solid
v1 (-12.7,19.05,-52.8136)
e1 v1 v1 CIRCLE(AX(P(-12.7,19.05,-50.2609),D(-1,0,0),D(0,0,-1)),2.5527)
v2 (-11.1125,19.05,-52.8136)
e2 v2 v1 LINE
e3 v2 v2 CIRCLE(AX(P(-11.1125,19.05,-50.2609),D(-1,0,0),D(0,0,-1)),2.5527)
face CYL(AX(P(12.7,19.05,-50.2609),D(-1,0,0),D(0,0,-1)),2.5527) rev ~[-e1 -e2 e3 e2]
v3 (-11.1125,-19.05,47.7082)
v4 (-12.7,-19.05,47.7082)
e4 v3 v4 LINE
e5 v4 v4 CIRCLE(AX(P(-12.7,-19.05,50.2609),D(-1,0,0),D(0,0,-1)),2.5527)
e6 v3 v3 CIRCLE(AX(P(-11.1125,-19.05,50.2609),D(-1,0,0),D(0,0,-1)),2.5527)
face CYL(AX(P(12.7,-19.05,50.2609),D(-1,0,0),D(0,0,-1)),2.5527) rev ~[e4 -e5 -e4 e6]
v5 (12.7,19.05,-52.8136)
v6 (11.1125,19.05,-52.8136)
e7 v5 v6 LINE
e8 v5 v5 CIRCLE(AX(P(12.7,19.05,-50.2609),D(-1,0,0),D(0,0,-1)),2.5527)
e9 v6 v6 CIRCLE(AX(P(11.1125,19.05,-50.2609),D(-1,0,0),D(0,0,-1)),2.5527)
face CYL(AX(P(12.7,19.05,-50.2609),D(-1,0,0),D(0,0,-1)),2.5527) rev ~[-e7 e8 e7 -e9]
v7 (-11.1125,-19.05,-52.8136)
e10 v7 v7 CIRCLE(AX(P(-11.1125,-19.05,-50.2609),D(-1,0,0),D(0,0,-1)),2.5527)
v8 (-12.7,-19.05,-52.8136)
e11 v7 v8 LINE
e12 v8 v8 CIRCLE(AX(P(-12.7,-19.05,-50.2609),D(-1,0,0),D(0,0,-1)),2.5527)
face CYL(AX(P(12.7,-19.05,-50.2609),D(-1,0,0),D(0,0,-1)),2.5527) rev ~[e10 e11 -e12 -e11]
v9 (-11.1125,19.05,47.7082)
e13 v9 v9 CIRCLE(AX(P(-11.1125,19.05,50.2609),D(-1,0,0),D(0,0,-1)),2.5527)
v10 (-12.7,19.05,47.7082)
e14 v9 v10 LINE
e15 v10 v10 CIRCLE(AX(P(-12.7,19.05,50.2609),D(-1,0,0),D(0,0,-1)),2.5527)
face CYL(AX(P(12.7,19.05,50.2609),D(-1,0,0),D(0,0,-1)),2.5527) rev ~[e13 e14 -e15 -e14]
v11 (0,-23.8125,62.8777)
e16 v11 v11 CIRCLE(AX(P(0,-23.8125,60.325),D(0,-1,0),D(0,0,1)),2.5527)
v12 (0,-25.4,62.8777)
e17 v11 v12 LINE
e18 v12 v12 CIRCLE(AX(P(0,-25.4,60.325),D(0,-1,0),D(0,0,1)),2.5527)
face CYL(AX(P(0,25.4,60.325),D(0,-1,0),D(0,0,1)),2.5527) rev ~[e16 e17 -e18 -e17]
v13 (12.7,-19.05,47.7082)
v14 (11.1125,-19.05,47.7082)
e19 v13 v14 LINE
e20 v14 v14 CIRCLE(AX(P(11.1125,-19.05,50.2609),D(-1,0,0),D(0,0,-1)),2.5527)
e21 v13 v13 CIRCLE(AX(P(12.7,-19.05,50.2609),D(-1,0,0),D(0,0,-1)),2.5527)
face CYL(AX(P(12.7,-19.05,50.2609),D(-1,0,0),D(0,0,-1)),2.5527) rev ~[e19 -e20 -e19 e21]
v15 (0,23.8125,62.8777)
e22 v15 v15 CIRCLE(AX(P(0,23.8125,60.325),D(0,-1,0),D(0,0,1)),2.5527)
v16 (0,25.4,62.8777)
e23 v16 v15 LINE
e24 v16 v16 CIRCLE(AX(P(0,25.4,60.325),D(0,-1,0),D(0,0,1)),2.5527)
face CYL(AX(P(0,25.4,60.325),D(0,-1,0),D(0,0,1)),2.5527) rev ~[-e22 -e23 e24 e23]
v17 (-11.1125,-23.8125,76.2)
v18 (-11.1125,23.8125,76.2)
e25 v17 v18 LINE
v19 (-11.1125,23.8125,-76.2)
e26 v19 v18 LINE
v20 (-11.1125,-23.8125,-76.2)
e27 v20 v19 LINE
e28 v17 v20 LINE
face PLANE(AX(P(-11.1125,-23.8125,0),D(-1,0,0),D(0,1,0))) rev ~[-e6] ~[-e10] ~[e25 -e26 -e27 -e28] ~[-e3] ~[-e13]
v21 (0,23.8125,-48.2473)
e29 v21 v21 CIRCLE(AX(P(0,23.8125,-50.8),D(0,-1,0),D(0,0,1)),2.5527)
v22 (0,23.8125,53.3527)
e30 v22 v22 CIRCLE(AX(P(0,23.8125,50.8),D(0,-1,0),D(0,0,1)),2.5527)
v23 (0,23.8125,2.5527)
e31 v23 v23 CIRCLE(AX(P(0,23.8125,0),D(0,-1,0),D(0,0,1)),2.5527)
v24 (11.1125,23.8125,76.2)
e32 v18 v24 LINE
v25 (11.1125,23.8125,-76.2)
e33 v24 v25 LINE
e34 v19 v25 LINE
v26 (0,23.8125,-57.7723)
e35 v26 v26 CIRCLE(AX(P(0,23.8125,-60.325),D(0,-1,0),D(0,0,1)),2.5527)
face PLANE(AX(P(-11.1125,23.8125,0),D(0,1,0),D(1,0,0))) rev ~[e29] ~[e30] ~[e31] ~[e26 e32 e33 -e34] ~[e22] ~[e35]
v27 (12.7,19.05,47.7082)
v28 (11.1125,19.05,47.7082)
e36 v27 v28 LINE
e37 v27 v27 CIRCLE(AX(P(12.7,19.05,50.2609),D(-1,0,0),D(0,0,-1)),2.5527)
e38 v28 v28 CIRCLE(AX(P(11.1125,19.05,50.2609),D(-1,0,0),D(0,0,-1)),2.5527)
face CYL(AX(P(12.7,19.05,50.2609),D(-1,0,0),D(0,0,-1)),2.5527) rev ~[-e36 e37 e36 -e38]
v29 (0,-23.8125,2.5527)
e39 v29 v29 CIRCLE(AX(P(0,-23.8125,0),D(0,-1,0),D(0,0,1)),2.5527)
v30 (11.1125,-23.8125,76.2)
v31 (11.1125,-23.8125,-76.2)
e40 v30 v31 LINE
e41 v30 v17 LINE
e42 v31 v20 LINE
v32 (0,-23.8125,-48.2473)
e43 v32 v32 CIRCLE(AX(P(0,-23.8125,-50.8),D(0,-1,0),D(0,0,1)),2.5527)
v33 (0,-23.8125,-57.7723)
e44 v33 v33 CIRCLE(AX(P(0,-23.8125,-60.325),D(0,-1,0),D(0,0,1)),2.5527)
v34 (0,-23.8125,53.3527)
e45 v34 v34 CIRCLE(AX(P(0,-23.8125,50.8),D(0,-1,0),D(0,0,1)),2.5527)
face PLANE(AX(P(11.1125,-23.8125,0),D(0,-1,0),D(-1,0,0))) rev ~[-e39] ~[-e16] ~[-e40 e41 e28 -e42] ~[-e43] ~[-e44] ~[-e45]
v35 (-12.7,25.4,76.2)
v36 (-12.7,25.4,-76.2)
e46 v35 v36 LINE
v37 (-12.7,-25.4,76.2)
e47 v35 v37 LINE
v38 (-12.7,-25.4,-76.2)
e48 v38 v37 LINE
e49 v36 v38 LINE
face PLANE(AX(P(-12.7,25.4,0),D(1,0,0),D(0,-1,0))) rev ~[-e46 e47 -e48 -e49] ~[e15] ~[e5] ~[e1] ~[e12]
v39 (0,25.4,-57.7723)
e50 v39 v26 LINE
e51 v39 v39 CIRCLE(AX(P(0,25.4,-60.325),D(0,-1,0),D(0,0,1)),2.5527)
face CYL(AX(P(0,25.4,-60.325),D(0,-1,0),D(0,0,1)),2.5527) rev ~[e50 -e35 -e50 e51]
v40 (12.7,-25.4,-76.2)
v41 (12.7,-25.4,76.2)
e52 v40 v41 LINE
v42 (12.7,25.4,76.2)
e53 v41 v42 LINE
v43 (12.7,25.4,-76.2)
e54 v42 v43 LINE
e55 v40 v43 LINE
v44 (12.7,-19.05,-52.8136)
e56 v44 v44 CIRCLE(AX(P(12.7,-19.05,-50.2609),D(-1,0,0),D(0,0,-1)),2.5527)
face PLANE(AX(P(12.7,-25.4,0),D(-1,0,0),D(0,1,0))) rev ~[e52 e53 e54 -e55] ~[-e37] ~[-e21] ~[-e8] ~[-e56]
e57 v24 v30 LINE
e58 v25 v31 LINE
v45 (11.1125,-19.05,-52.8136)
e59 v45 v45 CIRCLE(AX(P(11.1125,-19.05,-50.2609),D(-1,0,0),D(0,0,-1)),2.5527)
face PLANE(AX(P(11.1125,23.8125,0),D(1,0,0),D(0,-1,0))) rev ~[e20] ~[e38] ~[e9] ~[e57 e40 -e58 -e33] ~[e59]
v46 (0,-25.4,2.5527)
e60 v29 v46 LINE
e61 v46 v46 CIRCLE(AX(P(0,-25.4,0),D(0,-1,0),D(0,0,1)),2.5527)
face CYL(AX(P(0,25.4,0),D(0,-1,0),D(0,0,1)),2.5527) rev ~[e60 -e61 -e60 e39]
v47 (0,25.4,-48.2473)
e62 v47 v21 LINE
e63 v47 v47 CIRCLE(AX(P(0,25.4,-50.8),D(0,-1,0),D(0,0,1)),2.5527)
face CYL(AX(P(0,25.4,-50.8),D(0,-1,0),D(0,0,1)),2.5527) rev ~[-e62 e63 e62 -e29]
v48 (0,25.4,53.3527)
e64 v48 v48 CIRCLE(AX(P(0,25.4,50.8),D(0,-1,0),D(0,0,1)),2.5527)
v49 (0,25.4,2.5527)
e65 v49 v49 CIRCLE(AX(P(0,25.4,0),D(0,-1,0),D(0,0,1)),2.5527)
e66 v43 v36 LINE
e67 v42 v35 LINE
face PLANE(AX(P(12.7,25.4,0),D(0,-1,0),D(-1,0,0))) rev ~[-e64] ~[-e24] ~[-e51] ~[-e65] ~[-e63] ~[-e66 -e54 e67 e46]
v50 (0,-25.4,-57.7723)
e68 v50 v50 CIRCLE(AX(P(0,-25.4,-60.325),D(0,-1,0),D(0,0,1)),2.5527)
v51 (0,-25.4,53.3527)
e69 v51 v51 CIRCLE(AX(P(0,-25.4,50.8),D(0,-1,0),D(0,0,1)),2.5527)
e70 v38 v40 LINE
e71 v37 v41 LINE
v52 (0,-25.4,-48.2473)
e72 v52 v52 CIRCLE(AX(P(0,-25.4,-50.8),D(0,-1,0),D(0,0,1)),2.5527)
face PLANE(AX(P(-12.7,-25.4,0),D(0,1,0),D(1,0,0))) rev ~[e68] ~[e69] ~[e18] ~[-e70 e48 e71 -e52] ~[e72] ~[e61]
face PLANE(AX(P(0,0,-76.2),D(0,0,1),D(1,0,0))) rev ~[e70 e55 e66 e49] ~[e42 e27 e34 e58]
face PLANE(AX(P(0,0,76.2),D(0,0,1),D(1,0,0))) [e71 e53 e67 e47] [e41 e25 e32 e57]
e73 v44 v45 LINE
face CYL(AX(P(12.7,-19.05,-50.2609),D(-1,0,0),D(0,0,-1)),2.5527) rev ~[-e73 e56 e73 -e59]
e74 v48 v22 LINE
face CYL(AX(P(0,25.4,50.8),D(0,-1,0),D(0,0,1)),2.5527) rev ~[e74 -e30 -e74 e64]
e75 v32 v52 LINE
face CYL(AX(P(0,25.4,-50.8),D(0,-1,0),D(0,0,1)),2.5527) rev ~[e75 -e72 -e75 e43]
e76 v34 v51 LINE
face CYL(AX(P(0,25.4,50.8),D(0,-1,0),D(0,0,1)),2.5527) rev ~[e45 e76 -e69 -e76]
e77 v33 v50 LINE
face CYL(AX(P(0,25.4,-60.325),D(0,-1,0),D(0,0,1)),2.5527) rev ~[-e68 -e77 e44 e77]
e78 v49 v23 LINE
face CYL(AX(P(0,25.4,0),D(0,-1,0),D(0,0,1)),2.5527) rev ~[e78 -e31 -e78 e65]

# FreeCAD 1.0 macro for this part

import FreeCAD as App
import Part
import Sketcher

V = App.Vector
Q = App.Units.Quantity

doc = App.newDocument("Part")
body = doc.addObject("PartDesign::Body", "Body")

sketch1 = body.newObject("Sketcher::SketchObject", "Sketch")
sketch1.AttachmentSupport = (doc.getObject("XY_Plane"), [""])
sketch1.MapMode = "FlatFace"
sketch1.addGeometry(Part.LineSegment(V(-13, 25, 0), V(-13, -25, 0)), False)
sketch1.addGeometry(Part.LineSegment(V(-13, -25, 0), V(13, -25, 0)), False)
sketch1.addGeometry(Part.LineSegment(V(13, -25, 0), V(13, 25, 0)), False)
sketch1.addGeometry(Part.LineSegment(V(13, 25, 0), V(-13, 25, 0)), False)
sketch1.addGeometry(Part.LineSegment(V(-11, -24, 0), V(-11, 24, 0)), False)
sketch1.addGeometry(Part.LineSegment(V(-11, 24, 0), V(11, 24, 0)), False)
sketch1.addGeometry(Part.LineSegment(V(11, 24, 0), V(11, -24, 0)), False)
sketch1.addGeometry(Part.LineSegment(V(11, -24, 0), V(-11, -24, 0)), False)
sketch1.addConstraint(Sketcher.Constraint("Coincident", 0, 2, 1, 1))
sketch1.addConstraint(Sketcher.Constraint("Coincident", 1, 2, 2, 1))
sketch1.addConstraint(Sketcher.Constraint("Coincident", 2, 2, 3, 1))
sketch1.addConstraint(Sketcher.Constraint("Coincident", 3, 2, 0, 1))
sketch1.addConstraint(Sketcher.Constraint("Coincident", 4, 2, 5, 1))
sketch1.addConstraint(Sketcher.Constraint("Coincident", 5, 2, 6, 1))
sketch1.addConstraint(Sketcher.Constraint("Coincident", 6, 2, 7, 1))
sketch1.addConstraint(Sketcher.Constraint("Coincident", 7, 2, 4, 1))
sketch1.addConstraint(Sketcher.Constraint("Vertical", 0))
sketch1.addConstraint(Sketcher.Constraint("Horizontal", 1))
sketch1.addConstraint(Sketcher.Constraint("Vertical", 2))
sketch1.addConstraint(Sketcher.Constraint("Horizontal", 3))
sketch1.addConstraint(Sketcher.Constraint("Vertical", 4))
sketch1.addConstraint(Sketcher.Constraint("Horizontal", 5))
sketch1.addConstraint(Sketcher.Constraint("Vertical", 6))
sketch1.addConstraint(Sketcher.Constraint("Horizontal", 7))
sketch1.addConstraint(Sketcher.Constraint("Symmetric", 0, 2, 2, 2, -1, 1))
sketch1.addConstraint(Sketcher.Constraint("Symmetric", 4, 2, 6, 2, -1, 1))
sketch1.addConstraint(Sketcher.Constraint("DistanceX", 1, 1, 1, 2, Q("1 in")))
sketch1.addConstraint(Sketcher.Constraint("DistanceY", 0, 2, 0, 1, Q("2 in")))
sketch1.addConstraint(Sketcher.Constraint("DistanceX", 3, 2, 4, 2, Q("0.0625 in")))
sketch1.addConstraint(Sketcher.Constraint("DistanceY", 4, 2, 3, 2, Q("0.0625 in")))
pad1 = body.newObject("PartDesign::Pad", "Pad")
pad1.Profile = sketch1
pad1.Length = Q("6 in")
pad1.Midplane = True

sketch2 = body.newObject("Sketcher::SketchObject", "Sketch001")
sketch2.AttachmentSupport = (doc.getObject("XZ_Plane"), [""])
sketch2.MapMode = "FlatFace"
sketch2.AttachmentOffset = App.Placement(V(0, 0, -1 * 25.4), App.Rotation())
sketch2.addGeometry(Part.Circle(V(0, -50.8, 0), V(0, 0, 1), 2.6), False)
sketch2.addGeometry(Part.Circle(V(0, 50.8, 0), V(0, 0, 1), 2.6), False)
sketch2.addGeometry(Part.Circle(V(0, 0, 0), V(0, 0, 1), 2.6), False)
sketch2.addConstraint(Sketcher.Constraint("Coincident", 2, 3, -1, 1))
sketch2.addConstraint(Sketcher.Constraint("Equal", 0, 1))
sketch2.addConstraint(Sketcher.Constraint("Equal", 1, 2))
sketch2.addConstraint(Sketcher.Constraint("Symmetric", 0, 3, 1, 3, -1, 1))
sketch2.addConstraint(Sketcher.Constraint("PointOnObject", 0, 3, -2))
sketch2.addConstraint(Sketcher.Constraint("Diameter", 0, Q("0.201 in")))
sketch2.addConstraint(Sketcher.Constraint("DistanceY", 0, 3, -1, 1, Q("2 in")))
doc.recompute()
hole = body.newObject("PartDesign::Hole", "Hole")
hole.Profile = sketch2
hole.ThreadType = "None"
hole.Diameter = Q("0.201 in")
hole.DepthType = "ThroughAll"
hole.Reversed = True

sketch3 = body.newObject("Sketcher::SketchObject", "Sketch002")
sketch3.AttachmentSupport = (doc.getObject("YZ_Plane"), [""])
sketch3.MapMode = "FlatFace"
sketch3.AttachmentOffset = App.Placement(V(0, 0, 0.5 * 25.4), App.Rotation())
sketch3.addGeometry(Part.Circle(V(19.1, 50.3, 0), V(0, 0, 1), 2.6), False)
sketch3.addGeometry(Part.Circle(V(19.1, -50.3, 0), V(0, 0, 1), 2.6), False)
sketch3.addGeometry(Part.Circle(V(-19.1, -50.3, 0), V(0, 0, 1), 2.6), False)
sketch3.addGeometry(Part.Circle(V(-19.1, 50.3, 0), V(0, 0, 1), 2.6), False)
sketch3.addConstraint(Sketcher.Constraint("Equal", 0, 1))
sketch3.addConstraint(Sketcher.Constraint("Equal", 1, 2))
sketch3.addConstraint(Sketcher.Constraint("Equal", 2, 3))
sketch3.addConstraint(Sketcher.Constraint("Symmetric", 0, 3, 2, 3, -1, 1))
sketch3.addConstraint(Sketcher.Constraint("Symmetric", 1, 3, 3, 3, -1, 1))
sketch3.addConstraint(Sketcher.Constraint("Symmetric", 1, 3, 2, 3, -2))
sketch3.addConstraint(Sketcher.Constraint("Diameter", 0, Q("0.201 in")))
sketch3.addConstraint(Sketcher.Constraint("DistanceX", 2, 3, 1, 3, Q("1.5 in")))
sketch3.addConstraint(Sketcher.Constraint("DistanceY", -1, 1, 0, 3, Q("50.261 mm")))
doc.recompute()
hole2 = body.newObject("PartDesign::Hole", "Hole001")
hole2.Profile = sketch3
hole2.ThreadType = "None"
hole2.Diameter = Q("0.201 in")
hole2.DepthType = "ThroughAll"

sketch4 = body.newObject("Sketcher::SketchObject", "Sketch003")
sketch4.AttachmentSupport = (doc.getObject("XZ_Plane"), [""])
sketch4.MapMode = "FlatFace"
sketch4.AttachmentOffset = App.Placement(V(0, 0, -1 * 25.4), App.Rotation())
sketch4.addGeometry(Part.Circle(V(0, -60.3, 0), V(0, 0, 1), 2.6), False)
sketch4.addGeometry(Part.Circle(V(0, 60.3, 0), V(0, 0, 1), 2.6), False)
sketch4.addConstraint(Sketcher.Constraint("Equal", 0, 1))
sketch4.addConstraint(Sketcher.Constraint("Symmetric", 0, 3, 1, 3, -1, 1))
sketch4.addConstraint(Sketcher.Constraint("PointOnObject", 0, 3, -2))
sketch4.addConstraint(Sketcher.Constraint("Diameter", 0, Q("0.201 in")))
sketch4.addConstraint(Sketcher.Constraint("DistanceY", 0, 3, 1, 3, Q("4.75 in")))
doc.recompute()
hole3 = body.newObject("PartDesign::Hole", "Hole002")
hole3.Profile = sketch4
hole3.ThreadType = "None"
hole3.Diameter = Q("0.201 in")
hole3.DepthType = "ThroughAll"
hole3.Reversed = True

doc.recompute()
